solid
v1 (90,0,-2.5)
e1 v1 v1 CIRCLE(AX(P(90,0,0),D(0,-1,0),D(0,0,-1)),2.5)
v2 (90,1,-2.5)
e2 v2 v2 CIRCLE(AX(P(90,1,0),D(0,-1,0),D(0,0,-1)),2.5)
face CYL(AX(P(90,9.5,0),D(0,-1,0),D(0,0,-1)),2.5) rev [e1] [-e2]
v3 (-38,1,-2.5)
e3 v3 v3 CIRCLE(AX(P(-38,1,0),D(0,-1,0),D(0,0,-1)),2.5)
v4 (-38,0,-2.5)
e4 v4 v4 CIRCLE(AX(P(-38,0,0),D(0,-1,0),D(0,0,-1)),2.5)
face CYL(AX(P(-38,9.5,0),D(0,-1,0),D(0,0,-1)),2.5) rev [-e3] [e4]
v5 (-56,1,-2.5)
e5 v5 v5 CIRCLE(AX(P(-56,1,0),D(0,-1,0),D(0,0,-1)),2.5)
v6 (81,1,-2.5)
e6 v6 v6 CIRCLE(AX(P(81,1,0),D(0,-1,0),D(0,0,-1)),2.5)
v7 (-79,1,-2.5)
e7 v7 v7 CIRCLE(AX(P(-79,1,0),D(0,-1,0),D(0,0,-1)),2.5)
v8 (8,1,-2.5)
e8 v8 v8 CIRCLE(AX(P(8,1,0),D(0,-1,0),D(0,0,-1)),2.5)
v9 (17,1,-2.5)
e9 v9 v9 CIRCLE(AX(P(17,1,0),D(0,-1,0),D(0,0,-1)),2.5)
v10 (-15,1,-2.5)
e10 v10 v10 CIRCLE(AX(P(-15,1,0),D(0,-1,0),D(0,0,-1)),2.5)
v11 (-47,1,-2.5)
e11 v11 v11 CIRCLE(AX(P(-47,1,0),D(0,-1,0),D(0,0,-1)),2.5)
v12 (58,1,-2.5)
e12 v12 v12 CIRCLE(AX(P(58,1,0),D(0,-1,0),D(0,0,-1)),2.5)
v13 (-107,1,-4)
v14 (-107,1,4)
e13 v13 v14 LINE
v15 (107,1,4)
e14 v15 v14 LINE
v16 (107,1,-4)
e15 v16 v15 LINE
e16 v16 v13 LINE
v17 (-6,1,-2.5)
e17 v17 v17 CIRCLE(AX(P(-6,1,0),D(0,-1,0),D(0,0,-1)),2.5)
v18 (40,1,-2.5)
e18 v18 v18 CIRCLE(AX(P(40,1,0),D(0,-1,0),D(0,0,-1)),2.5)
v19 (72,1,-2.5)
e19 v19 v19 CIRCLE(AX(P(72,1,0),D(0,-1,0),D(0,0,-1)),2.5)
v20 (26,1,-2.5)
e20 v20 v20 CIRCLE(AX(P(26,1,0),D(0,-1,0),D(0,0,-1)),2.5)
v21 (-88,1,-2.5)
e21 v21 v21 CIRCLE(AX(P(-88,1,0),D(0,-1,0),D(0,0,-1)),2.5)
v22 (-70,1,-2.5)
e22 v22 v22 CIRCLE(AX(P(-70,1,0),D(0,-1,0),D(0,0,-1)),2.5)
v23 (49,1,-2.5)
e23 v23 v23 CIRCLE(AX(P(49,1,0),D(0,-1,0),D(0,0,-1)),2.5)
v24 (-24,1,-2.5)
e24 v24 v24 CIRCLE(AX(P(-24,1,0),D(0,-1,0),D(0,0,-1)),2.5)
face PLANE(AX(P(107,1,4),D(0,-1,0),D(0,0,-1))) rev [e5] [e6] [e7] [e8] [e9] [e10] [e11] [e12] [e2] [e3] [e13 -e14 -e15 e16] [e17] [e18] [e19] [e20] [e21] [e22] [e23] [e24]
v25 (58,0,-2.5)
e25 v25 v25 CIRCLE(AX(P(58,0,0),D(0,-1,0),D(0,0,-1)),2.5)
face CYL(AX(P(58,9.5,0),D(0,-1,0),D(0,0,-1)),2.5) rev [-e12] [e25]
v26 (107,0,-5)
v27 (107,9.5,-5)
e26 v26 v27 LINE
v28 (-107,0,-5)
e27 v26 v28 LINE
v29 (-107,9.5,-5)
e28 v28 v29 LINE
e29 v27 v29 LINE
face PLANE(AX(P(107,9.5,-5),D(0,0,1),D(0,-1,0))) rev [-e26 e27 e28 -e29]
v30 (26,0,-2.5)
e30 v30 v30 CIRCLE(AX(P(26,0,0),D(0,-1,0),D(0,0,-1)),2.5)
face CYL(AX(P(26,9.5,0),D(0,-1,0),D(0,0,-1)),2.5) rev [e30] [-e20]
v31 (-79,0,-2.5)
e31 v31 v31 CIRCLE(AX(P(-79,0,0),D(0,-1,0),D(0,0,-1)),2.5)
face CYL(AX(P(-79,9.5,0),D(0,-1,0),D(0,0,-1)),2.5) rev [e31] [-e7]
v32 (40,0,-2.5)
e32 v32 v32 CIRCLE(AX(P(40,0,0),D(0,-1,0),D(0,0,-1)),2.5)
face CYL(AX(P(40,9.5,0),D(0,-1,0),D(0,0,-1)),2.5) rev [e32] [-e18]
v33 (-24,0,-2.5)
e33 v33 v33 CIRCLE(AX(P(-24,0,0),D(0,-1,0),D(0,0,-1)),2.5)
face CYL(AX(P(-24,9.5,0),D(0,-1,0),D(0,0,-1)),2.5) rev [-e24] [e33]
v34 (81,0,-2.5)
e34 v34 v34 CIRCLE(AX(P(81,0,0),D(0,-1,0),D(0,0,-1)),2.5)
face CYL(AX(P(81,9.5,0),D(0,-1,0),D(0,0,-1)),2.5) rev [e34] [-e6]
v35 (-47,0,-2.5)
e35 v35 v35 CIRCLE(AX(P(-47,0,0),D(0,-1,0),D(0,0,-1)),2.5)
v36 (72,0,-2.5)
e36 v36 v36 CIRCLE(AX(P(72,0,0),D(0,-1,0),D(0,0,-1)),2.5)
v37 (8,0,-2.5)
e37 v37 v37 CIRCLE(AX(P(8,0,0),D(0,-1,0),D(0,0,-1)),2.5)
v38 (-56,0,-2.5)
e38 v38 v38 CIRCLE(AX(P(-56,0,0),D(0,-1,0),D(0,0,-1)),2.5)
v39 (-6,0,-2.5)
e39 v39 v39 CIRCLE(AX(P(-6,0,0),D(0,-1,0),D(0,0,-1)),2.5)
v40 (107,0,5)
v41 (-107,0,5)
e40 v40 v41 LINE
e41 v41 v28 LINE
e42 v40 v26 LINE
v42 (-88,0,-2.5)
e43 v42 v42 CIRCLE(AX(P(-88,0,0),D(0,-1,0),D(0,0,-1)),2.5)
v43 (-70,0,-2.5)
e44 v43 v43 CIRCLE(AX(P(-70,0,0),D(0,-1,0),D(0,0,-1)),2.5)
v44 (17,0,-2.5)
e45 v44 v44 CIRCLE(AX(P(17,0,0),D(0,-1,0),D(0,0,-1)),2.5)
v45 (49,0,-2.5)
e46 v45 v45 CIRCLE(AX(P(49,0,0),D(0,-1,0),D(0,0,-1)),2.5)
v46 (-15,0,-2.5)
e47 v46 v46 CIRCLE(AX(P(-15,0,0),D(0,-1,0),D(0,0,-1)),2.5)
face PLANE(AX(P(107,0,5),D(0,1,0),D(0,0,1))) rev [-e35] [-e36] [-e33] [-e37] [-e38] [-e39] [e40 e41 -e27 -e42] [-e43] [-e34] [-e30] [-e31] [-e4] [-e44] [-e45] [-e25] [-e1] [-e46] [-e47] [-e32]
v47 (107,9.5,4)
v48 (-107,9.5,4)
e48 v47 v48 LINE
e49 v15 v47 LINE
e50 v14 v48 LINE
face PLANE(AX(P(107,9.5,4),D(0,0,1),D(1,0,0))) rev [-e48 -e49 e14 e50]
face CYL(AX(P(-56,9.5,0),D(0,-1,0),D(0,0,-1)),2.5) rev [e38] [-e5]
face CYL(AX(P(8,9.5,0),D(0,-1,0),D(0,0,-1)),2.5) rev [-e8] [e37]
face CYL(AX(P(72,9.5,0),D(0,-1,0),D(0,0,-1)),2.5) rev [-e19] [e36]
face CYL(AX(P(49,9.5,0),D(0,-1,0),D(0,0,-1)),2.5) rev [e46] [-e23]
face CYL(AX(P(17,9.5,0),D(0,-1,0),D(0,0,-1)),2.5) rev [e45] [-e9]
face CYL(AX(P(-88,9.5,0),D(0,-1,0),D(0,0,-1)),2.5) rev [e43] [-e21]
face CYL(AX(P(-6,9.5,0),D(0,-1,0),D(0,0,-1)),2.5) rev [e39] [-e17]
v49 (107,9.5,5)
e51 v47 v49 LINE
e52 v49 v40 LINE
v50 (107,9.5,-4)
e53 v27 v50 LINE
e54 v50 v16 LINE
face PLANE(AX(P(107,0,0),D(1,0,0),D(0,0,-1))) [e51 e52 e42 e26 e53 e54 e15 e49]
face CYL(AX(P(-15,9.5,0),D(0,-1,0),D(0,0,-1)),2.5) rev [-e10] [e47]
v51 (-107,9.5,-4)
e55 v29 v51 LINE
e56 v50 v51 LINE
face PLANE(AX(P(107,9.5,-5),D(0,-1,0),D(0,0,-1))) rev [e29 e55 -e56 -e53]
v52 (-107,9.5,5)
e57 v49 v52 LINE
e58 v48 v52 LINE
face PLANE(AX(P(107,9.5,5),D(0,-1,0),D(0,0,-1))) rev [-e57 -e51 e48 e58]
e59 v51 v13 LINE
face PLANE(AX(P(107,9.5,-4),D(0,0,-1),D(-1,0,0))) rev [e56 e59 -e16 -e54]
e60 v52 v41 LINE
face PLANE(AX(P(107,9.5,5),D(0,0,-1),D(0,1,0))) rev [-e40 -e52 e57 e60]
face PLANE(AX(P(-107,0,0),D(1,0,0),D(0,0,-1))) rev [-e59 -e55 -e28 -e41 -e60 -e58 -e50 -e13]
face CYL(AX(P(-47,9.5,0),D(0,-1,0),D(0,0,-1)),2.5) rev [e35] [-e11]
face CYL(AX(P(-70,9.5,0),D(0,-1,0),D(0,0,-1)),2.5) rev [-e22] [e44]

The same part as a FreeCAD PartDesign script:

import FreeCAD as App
import Part
import Sketcher

doc = App.newDocument("Part")
params = doc.addObject("Spreadsheet::Sheet", "Params")
for row, (alias, value) in enumerate([
    ("sketch1_height", "1 mm"),
    ("sketch1_height2", "10 mm"),
    ("sketch1_width", "9.5 mm"),
    ("sketch1_width2", "8.5 mm"),
    ("pad1_length", "214 mm"),
    ("sketch2_diameter", "5 mm"),
], start=1):
    params.set(f"A{row}", alias)
    params.set(f"B{row}", "=" + value)
    params.setAlias(f"B{row}", alias)

body = doc.addObject("PartDesign::Body", "Body")

sketch1 = body.newObject("Sketcher::SketchObject", "Sketch")
sketch1.AttachmentSupport = (doc.getObject("YZ_Plane"), [""])
sketch1.MapMode = "FlatFace"
sketch1.addGeometry(Part.LineSegment(App.Vector(9.5, 4, 0), App.Vector(9.5, 5, 0)), False)
sketch1.addGeometry(Part.LineSegment(App.Vector(9.5, 5, 0), App.Vector(0, 5, 0)), False)
sketch1.addGeometry(Part.LineSegment(App.Vector(0, 5, 0), App.Vector(0, -5, 0)), False)
sketch1.addGeometry(Part.LineSegment(App.Vector(0, -5, 0), App.Vector(9.5, -5, 0)), False)
sketch1.addGeometry(Part.LineSegment(App.Vector(9.5, -5, 0), App.Vector(9.5, -4, 0)), False)
sketch1.addGeometry(Part.LineSegment(App.Vector(9.5, -4, 0), App.Vector(1, -4, 0)), False)
sketch1.addGeometry(Part.LineSegment(App.Vector(1, -4, 0), App.Vector(1, 4, 0)), False)
sketch1.addGeometry(Part.LineSegment(App.Vector(1, 4, 0), App.Vector(9.5, 4, 0)), False)
sketch1.addConstraint(Sketcher.Constraint("Coincident", 0, 2, 1, 1))
sketch1.addConstraint(Sketcher.Constraint("Coincident", 1, 2, 2, 1))
sketch1.addConstraint(Sketcher.Constraint("Coincident", 2, 2, 3, 1))
sketch1.addConstraint(Sketcher.Constraint("Coincident", 3, 2, 4, 1))
sketch1.addConstraint(Sketcher.Constraint("Coincident", 4, 2, 5, 1))
sketch1.addConstraint(Sketcher.Constraint("Coincident", 5, 2, 6, 1))
sketch1.addConstraint(Sketcher.Constraint("Coincident", 6, 2, 7, 1))
sketch1.addConstraint(Sketcher.Constraint("Coincident", 7, 2, 0, 1))
sketch1.addConstraint(Sketcher.Constraint("Vertical", 0))
sketch1.addConstraint(Sketcher.Constraint("Horizontal", 1))
sketch1.addConstraint(Sketcher.Constraint("Vertical", 2))
sketch1.addConstraint(Sketcher.Constraint("Horizontal", 3))
sketch1.addConstraint(Sketcher.Constraint("Vertical", 4))
sketch1.addConstraint(Sketcher.Constraint("Horizontal", 5))
sketch1.addConstraint(Sketcher.Constraint("Vertical", 6))
sketch1.addConstraint(Sketcher.Constraint("Horizontal", 7))
sketch1.addConstraint(Sketcher.Constraint("Symmetric", 1, 2, 2, 2, -1, 1))
sketch1.addConstraint(Sketcher.Constraint("Symmetric", 4, 2, 7, 2, -1))
sketch1.addConstraint(Sketcher.Constraint("DistanceY", 0, 1, 0, 2, 1.0))
sketch1.addConstraint(Sketcher.Constraint("DistanceY", 2, 2, 2, 1, 10.0))
sketch1.addConstraint(Sketcher.Constraint("DistanceX", 1, 2, 1, 1, 9.5))
sketch1.addConstraint(Sketcher.Constraint("DistanceX", 5, 2, 5, 1, 8.5))
sketch1.setExpression("Constraints[18]", "Params.sketch1_height")
sketch1.setExpression("Constraints[19]", "Params.sketch1_height2")
sketch1.setExpression("Constraints[20]", "Params.sketch1_width")
sketch1.setExpression("Constraints[21]", "Params.sketch1_width2")
pad1 = body.newObject("PartDesign::Pad", "Pad")
pad1.Profile = sketch1
pad1.setExpression("Length", "Params.pad1_length")
pad1.Midplane = True

sketch2 = body.newObject("Sketcher::SketchObject", "Sketch001")
sketch2.AttachmentSupport = (doc.getObject("XZ_Plane"), [""])
sketch2.MapMode = "FlatFace"
sketch2.addGeometry(Part.Circle(App.Vector(-88, 0, 0), App.Vector(0, 0, 1), 2.5), False)
sketch2.addGeometry(Part.Circle(App.Vector(-79, 0, 0), App.Vector(0, 0, 1), 2.5), False)
sketch2.addGeometry(Part.Circle(App.Vector(-70, 0, 0), App.Vector(0, 0, 1), 2.5), False)
sketch2.addGeometry(Part.Circle(App.Vector(-56, 0, 0), App.Vector(0, 0, 1), 2.5), False)
sketch2.addGeometry(Part.Circle(App.Vector(-47, 0, 0), App.Vector(0, 0, 1), 2.5), False)
sketch2.addGeometry(Part.Circle(App.Vector(-38, 0, 0), App.Vector(0, 0, 1), 2.5), False)
sketch2.addGeometry(Part.Circle(App.Vector(-24, 0, 0), App.Vector(0, 0, 1), 2.5), False)
sketch2.addGeometry(Part.Circle(App.Vector(-15, 0, 0), App.Vector(0, 0, 1), 2.5), False)
sketch2.addGeometry(Part.Circle(App.Vector(-6, 0, 0), App.Vector(0, 0, 1), 2.5), False)
sketch2.addGeometry(Part.Circle(App.Vector(8, 0, 0), App.Vector(0, 0, 1), 2.5), False)
sketch2.addGeometry(Part.Circle(App.Vector(17, 0, 0), App.Vector(0, 0, 1), 2.5), False)
sketch2.addGeometry(Part.Circle(App.Vector(26, 0, 0), App.Vector(0, 0, 1), 2.5), False)
sketch2.addGeometry(Part.Circle(App.Vector(40, 0, 0), App.Vector(0, 0, 1), 2.5), False)
sketch2.addGeometry(Part.Circle(App.Vector(49, 0, 0), App.Vector(0, 0, 1), 2.5), False)
sketch2.addGeometry(Part.Circle(App.Vector(58, 0, 0), App.Vector(0, 0, 1), 2.5), False)
sketch2.addGeometry(Part.Circle(App.Vector(72, 0, 0), App.Vector(0, 0, 1), 2.5), False)
sketch2.addGeometry(Part.Circle(App.Vector(81, 0, 0), App.Vector(0, 0, 1), 2.5), False)
sketch2.addGeometry(Part.Circle(App.Vector(90, 0, 0), App.Vector(0, 0, 1), 2.5), False)
sketch2.addConstraint(Sketcher.Constraint("Equal", 0, 1))
sketch2.addConstraint(Sketcher.Constraint("Equal", 1, 2))
sketch2.addConstraint(Sketcher.Constraint("Equal", 2, 3))
sketch2.addConstraint(Sketcher.Constraint("Equal", 3, 4))
sketch2.addConstraint(Sketcher.Constraint("Equal", 4, 5))
sketch2.addConstraint(Sketcher.Constraint("Equal", 5, 6))
sketch2.addConstraint(Sketcher.Constraint("Equal", 6, 7))
sketch2.addConstraint(Sketcher.Constraint("Equal", 7, 8))
sketch2.addConstraint(Sketcher.Constraint("Equal", 8, 9))
sketch2.addConstraint(Sketcher.Constraint("Equal", 9, 10))
sketch2.addConstraint(Sketcher.Constraint("Equal", 10, 11))
sketch2.addConstraint(Sketcher.Constraint("Equal", 11, 12))
sketch2.addConstraint(Sketcher.Constraint("Equal", 12, 13))
sketch2.addConstraint(Sketcher.Constraint("Equal", 13, 14))
sketch2.addConstraint(Sketcher.Constraint("Equal", 14, 15))
sketch2.addConstraint(Sketcher.Constraint("Equal", 15, 16))
sketch2.addConstraint(Sketcher.Constraint("Equal", 16, 17))
sketch2.addConstraint(Sketcher.Constraint("PointOnObject", 0, 3, -1))
sketch2.addConstraint(Sketcher.Constraint("PointOnObject", 1, 3, -1))
sketch2.addConstraint(Sketcher.Constraint("PointOnObject", 2, 3, -1))
sketch2.addConstraint(Sketcher.Constraint("PointOnObject", 3, 3, -1))
sketch2.addConstraint(Sketcher.Constraint("PointOnObject", 4, 3, -1))
sketch2.addConstraint(Sketcher.Constraint("PointOnObject", 5, 3, -1))
sketch2.addConstraint(Sketcher.Constraint("PointOnObject", 6, 3, -1))
sketch2.addConstraint(Sketcher.Constraint("PointOnObject", 7, 3, -1))
sketch2.addConstraint(Sketcher.Constraint("PointOnObject", 8, 3, -1))
sketch2.addConstraint(Sketcher.Constraint("PointOnObject", 9, 3, -1))
sketch2.addConstraint(Sketcher.Constraint("PointOnObject", 10, 3, -1))
sketch2.addConstraint(Sketcher.Constraint("PointOnObject", 11, 3, -1))
sketch2.addConstraint(Sketcher.Constraint("PointOnObject", 12, 3, -1))
sketch2.addConstraint(Sketcher.Constraint("PointOnObject", 13, 3, -1))
sketch2.addConstraint(Sketcher.Constraint("PointOnObject", 14, 3, -1))
sketch2.addConstraint(Sketcher.Constraint("PointOnObject", 15, 3, -1))
sketch2.addConstraint(Sketcher.Constraint("PointOnObject", 16, 3, -1))
sketch2.addConstraint(Sketcher.Constraint("PointOnObject", 17, 3, -1))
sketch2.addConstraint(Sketcher.Constraint("Diameter", 0, 5.0))
sketch2.addConstraint(Sketcher.Constraint("DistanceX", 0, 3, -1, 1, 88.0))
sketch2.addConstraint(Sketcher.Constraint("DistanceX", 1, 3, -1, 1, 79.0))
sketch2.addConstraint(Sketcher.Constraint("DistanceX", 2, 3, -1, 1, 70.0))
sketch2.addConstraint(Sketcher.Constraint("DistanceX", 3, 3, -1, 1, 56.0))
sketch2.addConstraint(Sketcher.Constraint("DistanceX", 4, 3, -1, 1, 47.0))
sketch2.addConstraint(Sketcher.Constraint("DistanceX", 5, 3, -1, 1, 38.0))
sketch2.addConstraint(Sketcher.Constraint("DistanceX", 6, 3, -1, 1, 24.0))
sketch2.addConstraint(Sketcher.Constraint("DistanceX", 7, 3, -1, 1, 15.0))
sketch2.addConstraint(Sketcher.Constraint("DistanceX", 8, 3, -1, 1, 6.0))
sketch2.addConstraint(Sketcher.Constraint("DistanceX", -1, 1, 9, 3, 8.0))
sketch2.addConstraint(Sketcher.Constraint("DistanceX", -1, 1, 10, 3, 17.0))
sketch2.addConstraint(Sketcher.Constraint("DistanceX", -1, 1, 11, 3, 26.0))
sketch2.addConstraint(Sketcher.Constraint("DistanceX", -1, 1, 12, 3, 40.0))
sketch2.addConstraint(Sketcher.Constraint("DistanceX", -1, 1, 13, 3, 49.0))
sketch2.addConstraint(Sketcher.Constraint("DistanceX", -1, 1, 14, 3, 58.0))
sketch2.addConstraint(Sketcher.Constraint("DistanceX", -1, 1, 15, 3, 72.0))
sketch2.addConstraint(Sketcher.Constraint("DistanceX", -1, 1, 16, 3, 81.0))
sketch2.addConstraint(Sketcher.Constraint("DistanceX", -1, 1, 17, 3, 90.0))
sketch2.setExpression("Constraints[35]", "Params.sketch2_diameter")
pocket1 = body.newObject("PartDesign::Pocket", "Pocket")
pocket1.Profile = sketch2
pocket1.Type = "ThroughAll"

doc.recompute()
